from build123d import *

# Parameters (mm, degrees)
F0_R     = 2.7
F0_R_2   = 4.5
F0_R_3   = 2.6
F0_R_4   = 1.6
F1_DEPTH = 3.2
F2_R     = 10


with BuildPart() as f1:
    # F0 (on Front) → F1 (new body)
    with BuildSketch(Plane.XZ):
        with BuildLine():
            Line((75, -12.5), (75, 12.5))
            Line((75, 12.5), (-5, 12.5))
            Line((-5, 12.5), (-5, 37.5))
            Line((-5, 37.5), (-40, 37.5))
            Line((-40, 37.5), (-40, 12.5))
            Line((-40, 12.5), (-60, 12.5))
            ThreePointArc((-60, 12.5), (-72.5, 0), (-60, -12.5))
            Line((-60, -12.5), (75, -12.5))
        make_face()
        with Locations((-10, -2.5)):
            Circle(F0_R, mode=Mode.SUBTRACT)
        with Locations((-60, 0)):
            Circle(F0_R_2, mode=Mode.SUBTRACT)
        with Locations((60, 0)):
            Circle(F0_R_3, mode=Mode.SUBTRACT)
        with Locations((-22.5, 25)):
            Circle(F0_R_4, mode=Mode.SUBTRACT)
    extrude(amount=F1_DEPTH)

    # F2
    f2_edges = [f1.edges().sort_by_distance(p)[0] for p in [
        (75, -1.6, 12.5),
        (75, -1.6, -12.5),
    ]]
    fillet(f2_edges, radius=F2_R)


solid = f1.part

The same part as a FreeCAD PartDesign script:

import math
import FreeCAD as App
import Part
import Sketcher


def edges_at(feature, points):
    """Names of the edges that pass closest to the given points."""
    edges = feature.Shape.Edges
    near = lambda p: min(range(len(edges)), key=lambda i: edges[i].distToShape(Part.Vertex(*p))[0])
    return sorted({f"Edge{near(p) + 1}" for p in points})

doc = App.newDocument("Part")
body = doc.addObject("PartDesign::Body", "Body")

# Sketch on XZ plane
sketch1 = body.newObject("Sketcher::SketchObject", "Sketch")
sketch1.AttachmentSupport = (doc.getObject("XZ_Plane"), [""])
sketch1.MapMode = "FlatFace"
sketch1.addGeometry([
    Part.LineSegment(App.Vector(75, -12.5, 0), App.Vector(75, 12.5, 0)),  # 0
    Part.LineSegment(App.Vector(75, 12.5, 0), App.Vector(-5, 12.5, 0)),  # 1
    Part.LineSegment(App.Vector(-5, 12.5, 0), App.Vector(-5, 37.5, 0)),  # 2
    Part.LineSegment(App.Vector(-5, 37.5, 0), App.Vector(-40, 37.5, 0)),  # 3
    Part.LineSegment(App.Vector(-40, 37.5, 0), App.Vector(-40, 12.5, 0)),  # 4
    Part.LineSegment(App.Vector(-40, 12.5, 0), App.Vector(-60, 12.5, 0)),  # 5
    Part.ArcOfCircle(Part.Circle(App.Vector(-60, 0, 0), App.Vector(0, 0, 1), 12.5), math.radians(90), math.radians(270)),  # 6
    Part.LineSegment(App.Vector(-60, -12.5, 0), App.Vector(75, -12.5, 0)),  # 7
    Part.Circle(App.Vector(-60, 0, 0), App.Vector(0, 0, 1), 4.5),  # 8
    Part.Circle(App.Vector(-10, -2.5, 0), App.Vector(0, 0, 1), 2.7),  # 9
    Part.Circle(App.Vector(60, 0, 0), App.Vector(0, 0, 1), 2.6),  # 10
    Part.Circle(App.Vector(-22.5, 25, 0), App.Vector(0, 0, 1), 1.6),  # 11
], False)
sketch1.addConstraint([
    Sketcher.Constraint("Coincident", 0, 2, 1, 1),
    Sketcher.Constraint("Coincident", 1, 2, 2, 1),
    Sketcher.Constraint("Coincident", 2, 2, 3, 1),
    Sketcher.Constraint("Coincident", 3, 2, 4, 1),
    Sketcher.Constraint("Coincident", 4, 2, 5, 1),
    Sketcher.Constraint("Tangent", 5, 2, 6, 1),
    Sketcher.Constraint("Tangent", 6, 2, 7, 1),
    Sketcher.Constraint("Coincident", 7, 2, 0, 1),
    Sketcher.Constraint("Vertical", 0),
    Sketcher.Constraint("Horizontal", 1),
    Sketcher.Constraint("Vertical", 2),
    Sketcher.Constraint("Horizontal", 3),
    Sketcher.Constraint("Vertical", 4),
    Sketcher.Constraint("Horizontal", 5),
    Sketcher.Constraint("Horizontal", 7),
    Sketcher.Constraint("Coincident", 8, 3, 6, 3),
    Sketcher.Constraint("Symmetric", 6, 3, 10, 3, -1, 1),
    Sketcher.Constraint("PointOnObject", 6, 3, -1),
    Sketcher.Constraint("Horizontal", 1, 2, 4, 2),
    Sketcher.Constraint("Equal", 0, 2),
    Sketcher.Constraint("Diameter", 8, 9.0),
    Sketcher.Constraint("Diameter", 9, 5.4),
    Sketcher.Constraint("Diameter", 10, 5.2),
    Sketcher.Constraint("Diameter", 11, 3.2),
    Sketcher.Constraint("Radius", 6, 12.5),
    Sketcher.Constraint("DistanceX", 1, 2, 1, 1, 80.0),
    Sketcher.Constraint("DistanceX", 3, 2, 3, 1, 35.0),
    Sketcher.Constraint("DistanceX", 5, 2, 5, 1, 20.0),
    Sketcher.Constraint("DistanceX", 6, 3, -1, 1, 60.0),
    Sketcher.Constraint("DistanceX", 9, 3, -1, 1, 10.0),
    Sketcher.Constraint("DistanceY", -1, 1, 11, 3, 25.0),
    Sketcher.Constraint("DistanceY", 9, 3, 0, 2, 15.0),
    Sketcher.Constraint("DistanceX", 11, 3, -1, 1, 22.5),
])
pad1 = body.newObject("PartDesign::Pad", "Pad")
pad1.Profile = sketch1
pad1.Length = 3.2
doc.recompute()

fillet = body.newObject("PartDesign::Fillet", "Fillet")
fillet.Base = (pad1, edges_at(pad1, [(75, -1.6, 12.5), (75, -1.6, -12.5)]))
fillet.Radius = 10

doc.recompute()
